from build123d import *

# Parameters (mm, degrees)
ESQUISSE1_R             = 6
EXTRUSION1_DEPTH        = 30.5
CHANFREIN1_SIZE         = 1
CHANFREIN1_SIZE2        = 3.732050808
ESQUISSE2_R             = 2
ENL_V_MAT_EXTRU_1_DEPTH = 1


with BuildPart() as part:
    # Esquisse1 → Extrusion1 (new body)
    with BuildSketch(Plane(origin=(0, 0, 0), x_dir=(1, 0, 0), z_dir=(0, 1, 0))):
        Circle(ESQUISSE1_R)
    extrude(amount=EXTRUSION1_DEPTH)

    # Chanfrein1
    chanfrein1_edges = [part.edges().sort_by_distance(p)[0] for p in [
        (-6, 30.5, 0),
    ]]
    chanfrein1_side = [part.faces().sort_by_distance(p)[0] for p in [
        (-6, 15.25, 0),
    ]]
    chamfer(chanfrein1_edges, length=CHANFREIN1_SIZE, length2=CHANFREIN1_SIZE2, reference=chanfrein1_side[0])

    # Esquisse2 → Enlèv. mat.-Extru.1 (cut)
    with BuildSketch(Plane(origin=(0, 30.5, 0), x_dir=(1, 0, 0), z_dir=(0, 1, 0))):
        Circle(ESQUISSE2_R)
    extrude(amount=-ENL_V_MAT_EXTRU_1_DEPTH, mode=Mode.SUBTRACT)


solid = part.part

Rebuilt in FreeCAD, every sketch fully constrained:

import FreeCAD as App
import Part
import Sketcher
Q = App.Units.Quantity


def edges_at(feature, points):
    """Names of the edges that pass closest to the given points."""
    edges = feature.Shape.Edges
    near = lambda p: min(range(len(edges)), key=lambda i: edges[i].distToShape(Part.Vertex(*p))[0])
    return sorted({f"Edge{near(p) + 1}" for p in points})

doc = App.newDocument("Part")
body = doc.addObject("PartDesign::Body", "Body")

sketch1 = doc.addObject("Sketcher::SketchObject", "Sketch")
body.addObject(sketch1)
sketch1.AttachmentSupport = (doc.XZ_Plane, [""])
sketch1.MapMode = "FlatFace"
sketch1.addGeometry(Part.Circle(App.Vector(0, 0, 0), App.Vector(0, 0, 1), 6), False)
sketch1.addConstraint([
    Sketcher.Constraint("Coincident", 0, 3, -1, 1),
    Sketcher.Constraint("Diameter", 0, Q("12 mm")),
])
pad1 = doc.addObject("PartDesign::Pad", "Pad")
body.addObject(pad1)
pad1.Profile = sketch1
pad1.Length = 30.5
pad1.Reversed = True
doc.recompute()

chamfer = doc.addObject("PartDesign::Chamfer", "Chamfer")
body.addObject(chamfer)
chamfer.Base = (pad1, edges_at(pad1, [(-6, 30.5, 0)]))
chamfer.ChamferType = "Two distances"
chamfer.Size = 1
chamfer.Size2 = 3.732051

sketch2 = doc.addObject("Sketcher::SketchObject", "Sketch001")
body.addObject(sketch2)
sketch2.AttachmentSupport = (doc.XZ_Plane, [""])
sketch2.MapMode = "FlatFace"
sketch2.AttachmentOffset = App.Placement(App.Vector(0, 0, -30.5), App.Rotation())
sketch2.addGeometry(Part.Circle(App.Vector(0, 0, 0), App.Vector(0, 0, 1), 2), False)
sketch2.addConstraint([
    Sketcher.Constraint("Coincident", 0, 3, -1, 1),
    Sketcher.Constraint("Diameter", 0, Q("4 mm")),
])
pocket1 = doc.addObject("PartDesign::Pocket", "Pocket")
body.addObject(pocket1)
pocket1.Profile = sketch2
pocket1.Length = 1
pocket1.Reversed = True

doc.recompute()
